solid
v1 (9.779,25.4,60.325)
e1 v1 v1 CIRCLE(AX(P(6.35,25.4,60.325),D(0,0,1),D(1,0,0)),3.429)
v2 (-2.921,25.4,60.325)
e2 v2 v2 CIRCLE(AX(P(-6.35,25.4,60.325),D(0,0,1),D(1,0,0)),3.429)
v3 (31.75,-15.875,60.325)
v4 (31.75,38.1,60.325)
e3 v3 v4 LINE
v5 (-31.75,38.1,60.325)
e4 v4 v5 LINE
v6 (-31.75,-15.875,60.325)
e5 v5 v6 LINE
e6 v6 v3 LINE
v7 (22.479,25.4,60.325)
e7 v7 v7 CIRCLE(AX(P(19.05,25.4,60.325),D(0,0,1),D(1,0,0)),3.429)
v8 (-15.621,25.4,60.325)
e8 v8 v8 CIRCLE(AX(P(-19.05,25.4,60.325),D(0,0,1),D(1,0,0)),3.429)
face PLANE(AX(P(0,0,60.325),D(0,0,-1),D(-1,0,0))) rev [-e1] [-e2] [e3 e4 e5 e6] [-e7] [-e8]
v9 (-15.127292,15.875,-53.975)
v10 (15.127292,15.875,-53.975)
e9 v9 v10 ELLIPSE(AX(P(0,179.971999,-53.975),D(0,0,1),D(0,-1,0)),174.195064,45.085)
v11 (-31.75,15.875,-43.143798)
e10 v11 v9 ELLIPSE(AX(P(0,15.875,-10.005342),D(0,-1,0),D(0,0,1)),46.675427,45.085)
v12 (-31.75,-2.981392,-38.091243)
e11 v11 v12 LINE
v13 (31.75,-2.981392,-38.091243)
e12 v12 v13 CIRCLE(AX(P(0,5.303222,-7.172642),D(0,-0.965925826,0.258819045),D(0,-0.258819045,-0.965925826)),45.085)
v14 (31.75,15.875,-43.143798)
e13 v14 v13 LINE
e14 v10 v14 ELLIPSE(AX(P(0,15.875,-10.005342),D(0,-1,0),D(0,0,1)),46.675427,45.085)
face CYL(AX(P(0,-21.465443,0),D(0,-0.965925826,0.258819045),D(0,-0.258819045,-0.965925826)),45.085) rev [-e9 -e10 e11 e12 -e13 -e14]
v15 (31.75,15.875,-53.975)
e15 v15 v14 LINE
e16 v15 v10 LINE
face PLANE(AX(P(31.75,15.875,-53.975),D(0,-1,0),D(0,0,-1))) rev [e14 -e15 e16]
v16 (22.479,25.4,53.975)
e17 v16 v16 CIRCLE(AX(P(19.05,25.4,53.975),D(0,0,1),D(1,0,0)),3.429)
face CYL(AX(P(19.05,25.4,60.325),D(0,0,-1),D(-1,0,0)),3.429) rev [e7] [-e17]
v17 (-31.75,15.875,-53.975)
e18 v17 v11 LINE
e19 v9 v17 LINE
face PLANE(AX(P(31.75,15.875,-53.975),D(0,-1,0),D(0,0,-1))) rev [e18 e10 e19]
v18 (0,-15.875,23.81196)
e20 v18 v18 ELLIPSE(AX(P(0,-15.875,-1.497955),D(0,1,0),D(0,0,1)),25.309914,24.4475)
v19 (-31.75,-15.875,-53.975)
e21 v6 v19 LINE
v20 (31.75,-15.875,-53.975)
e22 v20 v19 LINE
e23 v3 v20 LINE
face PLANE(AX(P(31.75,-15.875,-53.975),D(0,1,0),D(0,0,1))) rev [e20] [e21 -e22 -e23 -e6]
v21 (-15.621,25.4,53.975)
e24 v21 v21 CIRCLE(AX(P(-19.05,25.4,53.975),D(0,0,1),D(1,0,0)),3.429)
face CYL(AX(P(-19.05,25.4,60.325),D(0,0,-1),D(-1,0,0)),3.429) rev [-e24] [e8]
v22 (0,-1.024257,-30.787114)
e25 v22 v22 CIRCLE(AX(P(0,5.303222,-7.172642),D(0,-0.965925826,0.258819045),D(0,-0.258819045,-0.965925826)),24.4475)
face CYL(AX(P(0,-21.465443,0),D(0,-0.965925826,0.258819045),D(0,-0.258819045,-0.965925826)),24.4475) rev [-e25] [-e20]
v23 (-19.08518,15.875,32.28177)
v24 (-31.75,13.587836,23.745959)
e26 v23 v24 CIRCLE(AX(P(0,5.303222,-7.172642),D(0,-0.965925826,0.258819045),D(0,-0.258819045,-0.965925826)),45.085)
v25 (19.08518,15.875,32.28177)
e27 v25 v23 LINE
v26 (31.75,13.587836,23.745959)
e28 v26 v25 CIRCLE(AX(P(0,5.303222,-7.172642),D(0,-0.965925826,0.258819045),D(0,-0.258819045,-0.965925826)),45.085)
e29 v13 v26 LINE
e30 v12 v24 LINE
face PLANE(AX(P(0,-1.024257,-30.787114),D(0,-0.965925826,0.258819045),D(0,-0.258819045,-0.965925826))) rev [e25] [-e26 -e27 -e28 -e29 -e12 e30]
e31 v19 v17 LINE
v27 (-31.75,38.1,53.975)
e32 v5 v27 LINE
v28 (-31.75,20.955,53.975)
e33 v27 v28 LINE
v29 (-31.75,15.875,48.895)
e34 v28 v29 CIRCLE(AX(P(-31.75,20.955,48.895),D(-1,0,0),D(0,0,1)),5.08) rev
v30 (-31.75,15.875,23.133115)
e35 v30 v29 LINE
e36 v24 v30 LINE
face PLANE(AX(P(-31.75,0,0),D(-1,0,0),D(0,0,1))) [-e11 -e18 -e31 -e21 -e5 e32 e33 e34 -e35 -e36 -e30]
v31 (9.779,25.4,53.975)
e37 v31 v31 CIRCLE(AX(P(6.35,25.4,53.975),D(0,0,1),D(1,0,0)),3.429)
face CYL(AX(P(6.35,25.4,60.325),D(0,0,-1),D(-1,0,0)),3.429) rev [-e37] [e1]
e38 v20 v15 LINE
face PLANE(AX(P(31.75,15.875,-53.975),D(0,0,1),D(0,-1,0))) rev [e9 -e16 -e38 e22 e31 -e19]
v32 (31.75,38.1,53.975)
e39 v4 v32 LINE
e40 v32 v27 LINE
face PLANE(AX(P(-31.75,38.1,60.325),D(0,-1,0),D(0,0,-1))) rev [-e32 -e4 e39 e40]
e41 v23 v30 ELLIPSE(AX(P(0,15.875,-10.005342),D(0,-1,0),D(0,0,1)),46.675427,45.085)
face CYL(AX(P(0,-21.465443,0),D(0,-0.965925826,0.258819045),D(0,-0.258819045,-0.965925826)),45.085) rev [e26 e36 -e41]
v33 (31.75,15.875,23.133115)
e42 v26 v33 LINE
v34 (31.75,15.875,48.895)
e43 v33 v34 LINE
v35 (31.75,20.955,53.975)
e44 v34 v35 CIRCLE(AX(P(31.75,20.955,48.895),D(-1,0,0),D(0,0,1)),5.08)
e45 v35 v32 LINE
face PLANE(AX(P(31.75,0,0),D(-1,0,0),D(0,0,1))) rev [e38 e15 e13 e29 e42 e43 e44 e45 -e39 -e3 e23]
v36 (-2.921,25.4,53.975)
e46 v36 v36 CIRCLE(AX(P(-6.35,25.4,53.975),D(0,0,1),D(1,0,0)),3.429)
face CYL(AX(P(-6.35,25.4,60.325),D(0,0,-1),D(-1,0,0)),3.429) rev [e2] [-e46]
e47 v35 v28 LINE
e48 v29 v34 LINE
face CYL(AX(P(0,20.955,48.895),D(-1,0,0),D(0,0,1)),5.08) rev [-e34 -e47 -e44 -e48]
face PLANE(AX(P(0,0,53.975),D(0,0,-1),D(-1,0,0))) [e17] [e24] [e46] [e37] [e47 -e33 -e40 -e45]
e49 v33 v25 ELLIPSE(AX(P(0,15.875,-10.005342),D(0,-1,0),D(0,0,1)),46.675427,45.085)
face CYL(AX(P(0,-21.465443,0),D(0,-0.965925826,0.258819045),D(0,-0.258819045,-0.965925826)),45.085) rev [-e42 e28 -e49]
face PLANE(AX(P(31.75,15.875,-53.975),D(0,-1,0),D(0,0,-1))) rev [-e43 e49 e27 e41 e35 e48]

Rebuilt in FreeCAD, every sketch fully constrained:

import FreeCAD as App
import Part
import Sketcher

V = App.Vector
Q = App.Units.Quantity


def edges_at(feature, points):
    """Names of the edges that pass closest to the given points."""
    edges = feature.Shape.Edges
    near = lambda p: min(range(len(edges)), key=lambda i: edges[i].distToShape(Part.Vertex(*p))[0])
    return sorted({f"Edge{near(p) + 1}" for p in points})


def add_polygon(sketch, points):
    """Adds a closed chain of lines whose ends are joined by coincident constraints."""
    first, n = sketch.GeometryCount, len(points)
    for a, b in zip(points, points[1:] + points[:1]):
        sketch.addGeometry(Part.LineSegment(App.Vector(*a, 0), App.Vector(*b, 0)), False)
    for i in range(n):
        sketch.addConstraint(Sketcher.Constraint("Coincident", first + i, 2, first + (i + 1) % n, 1))

doc = App.newDocument("Part")
body = doc.addObject("PartDesign::Body", "Body")

# Sketch on YZ plane
sketch1 = body.newObject("Sketcher::SketchObject", "Sketch")
sketch1.AttachmentSupport = (doc.getObject("YZ_Plane"), [""])
sketch1.MapMode = "FlatFace"
add_polygon(sketch1, [(16, 54), (-16, 54), (-16, -54), (16, -54)])  # lines 0-3
sketch1.addConstraint(Sketcher.Constraint("Horizontal", 0))
sketch1.addConstraint(Sketcher.Constraint("Vertical", 1))
sketch1.addConstraint(Sketcher.Constraint("Horizontal", 2))
sketch1.addConstraint(Sketcher.Constraint("Vertical", 3))
sketch1.addConstraint(Sketcher.Constraint("Symmetric", 0, 2, 2, 2, -1, 1))
sketch1.addConstraint(Sketcher.Constraint("DistanceX", 0, 2, 0, 1, Q("1.25 in")))
sketch1.addConstraint(Sketcher.Constraint("DistanceY", 1, 2, 1, 1, Q("4.25 in")))
pad1 = body.newObject("PartDesign::Pad", "Pad")
pad1.Profile = sketch1
pad1.Length = Q("2.5 in")
pad1.Midplane = True

# Sketch on YZ plane
sketch2 = body.newObject("Sketcher::SketchObject", "Sketch001")
sketch2.AttachmentSupport = (doc.getObject("YZ_Plane"), [""])
sketch2.MapMode = "FlatFace"
add_polygon(sketch2, [(-35, -22), (-1, -31), (-6, -51), (26, -59), (38, -16), (-29, 2)])  # lines 0-5
sketch2.addGeometry(Part.LineSegment(V(-29, 2, 0), V(38, -16, 0)), True)  # axis
sketch2.addConstraint(Sketcher.Constraint("Coincident", 6, 1, 4, 2))
sketch2.addConstraint(Sketcher.Constraint("Coincident", 6, 2, 3, 2))
sketch2.addConstraint(Sketcher.Constraint("Perpendicular", 0, 1))
sketch2.addConstraint(Sketcher.Constraint("Perpendicular", 1, 2))
sketch2.addConstraint(Sketcher.Constraint("Perpendicular", 2, 3))
sketch2.addConstraint(Sketcher.Constraint("Perpendicular", 3, 4))
sketch2.addConstraint(Sketcher.Constraint("Perpendicular", 4, 5))
sketch2.addConstraint(Sketcher.Constraint("Angle", 0, Q("-15 deg")))
sketch2.addConstraint(Sketcher.Constraint("Distance", 1, Q("0.8125 in")))
sketch2.addConstraint(Sketcher.Constraint("Distance", 3, Q("1.775 in")))
sketch2.addConstraint(Sketcher.Constraint("DistanceX", 4, 2, -1, 1, Q("1.125 in")))
sketch2.addConstraint(Sketcher.Constraint("DistanceY", -1, 1, 4, 2, Q("0.075 in")))
sketch2.addConstraint(Sketcher.Constraint("DistanceY", 5, 2, 3, 2, Q("5.775298 mm")))
sketch2.addConstraint(Sketcher.Constraint("DistanceY", 1, 2, -1, 1, Q("50.721408 mm")))
groove = body.newObject("PartDesign::Groove", "Groove")
groove.Profile = sketch2
groove.ReferenceAxis = (sketch2, ["Axis0"])
groove.Angle = 360

# Sketch on XY plane
sketch3 = body.newObject("Sketcher::SketchObject", "Sketch002")
sketch3.AttachmentSupport = (doc.getObject("XY_Plane"), [""])
sketch3.MapMode = "FlatFace"
sketch3.AttachmentOffset = App.Placement(V(0, 0, 2.125 * 25.4), App.Rotation())
add_polygon(sketch3, [(-31.8, 38.1), (-31.8, -38.1), (31.8, -38.1), (31.8, 38.1)])  # lines 0-3
sketch3.addGeometry(Part.Circle(V(-19.1, -25.4, 0), V(0, 0, 1), 3.4), False)  # 4
sketch3.addGeometry(Part.Circle(V(-6.3, -25.4, 0), V(0, 0, 1), 3.4), False)  # 5
sketch3.addGeometry(Part.Circle(V(6.3, -25.4, 0), V(0, 0, 1), 3.4), False)  # 6
sketch3.addGeometry(Part.Circle(V(19.1, -25.4, 0), V(0, 0, 1), 3.4), False)  # 7
sketch3.addGeometry(Part.Circle(V(-19.1, 25.4, 0), V(0, 0, 1), 3.4), False)  # 8
sketch3.addGeometry(Part.Circle(V(-6.3, 25.4, 0), V(0, 0, 1), 3.4), False)  # 9
sketch3.addGeometry(Part.Circle(V(6.3, 25.4, 0), V(0, 0, 1), 3.4), False)  # 10
sketch3.addGeometry(Part.Circle(V(19.1, 25.4, 0), V(0, 0, 1), 3.4), False)  # 11
sketch3.addConstraint(Sketcher.Constraint("Vertical", 0))
sketch3.addConstraint(Sketcher.Constraint("Horizontal", 1))
sketch3.addConstraint(Sketcher.Constraint("Vertical", 2))
sketch3.addConstraint(Sketcher.Constraint("Horizontal", 3))
sketch3.addConstraint(Sketcher.Constraint("Equal", 4, 5))
sketch3.addConstraint(Sketcher.Constraint("Equal", 5, 6))
sketch3.addConstraint(Sketcher.Constraint("Equal", 6, 7))
sketch3.addConstraint(Sketcher.Constraint("Equal", 7, 8))
sketch3.addConstraint(Sketcher.Constraint("Equal", 8, 9))
sketch3.addConstraint(Sketcher.Constraint("Equal", 9, 10))
sketch3.addConstraint(Sketcher.Constraint("Equal", 10, 11))
sketch3.addConstraint(Sketcher.Constraint("Symmetric", 7, 3, 8, 3, -1, 1))
sketch3.addConstraint(Sketcher.Constraint("Symmetric", 6, 3, 9, 3, -1, 1))
sketch3.addConstraint(Sketcher.Constraint("Symmetric", 5, 3, 10, 3, -1, 1))
sketch3.addConstraint(Sketcher.Constraint("Symmetric", 4, 3, 11, 3, -1, 1))
sketch3.addConstraint(Sketcher.Constraint("Symmetric", 0, 2, 2, 2, -1, 1))
sketch3.addConstraint(Sketcher.Constraint("Symmetric", 5, 3, 6, 3, -2))
sketch3.addConstraint(Sketcher.Constraint("Symmetric", 4, 3, 7, 3, -2))
sketch3.addConstraint(Sketcher.Constraint("Horizontal", 4, 3, 5, 3))
sketch3.addConstraint(Sketcher.Constraint("Diameter", 4, Q("0.27 in")))
sketch3.addConstraint(Sketcher.Constraint("DistanceY", 0, 2, 0, 1, Q("3 in")))
sketch3.addConstraint(Sketcher.Constraint("DistanceX", 1, 1, 1, 2, Q("2.5 in")))
sketch3.addConstraint(Sketcher.Constraint("DistanceY", 4, 3, -1, 1, Q("1 in")))
sketch3.addConstraint(Sketcher.Constraint("DistanceX", 4, 3, 6, 3, Q("1 in")))
sketch3.addConstraint(Sketcher.Constraint("DistanceX", 0, 2, 5, 3, Q("1 in")))
pad2 = body.newObject("PartDesign::Pad", "Pad001")
pad2.Profile = sketch3
pad2.Length = Q("0.25 in")
doc.recompute()

fillet = body.newObject("PartDesign::Fillet", "Fillet")
fillet.Base = (pad2, edges_at(pad2, [(0, 15.875, 53.975), (0, -15.875, 53.975)]))
fillet.Radius = Q("0.2 in")

# Sketch on XY plane
sketch4 = body.newObject("Sketcher::SketchObject", "Sketch003")
sketch4.AttachmentSupport = (doc.getObject("XY_Plane"), [""])
sketch4.MapMode = "FlatFace"
sketch4.AttachmentOffset = App.Placement(V(0, 0, 2.125 * 25.4), App.Rotation())
add_polygon(sketch4, [(40, -16), (40, -42), (-39, -42), (-39, -16)])  # lines 0-3
sketch4.addConstraint(Sketcher.Constraint("Vertical", 0))
sketch4.addConstraint(Sketcher.Constraint("Horizontal", 1))
sketch4.addConstraint(Sketcher.Constraint("Vertical", 2))
sketch4.addConstraint(Sketcher.Constraint("Horizontal", 3))
sketch4.addConstraint(Sketcher.Constraint("DistanceY", 2, 2, -1, 1, Q("0.625 in")))
sketch4.addConstraint(Sketcher.Constraint("DistanceY", 0, 2, 0, 1, Q("26.600112 mm")))
sketch4.addConstraint(Sketcher.Constraint("DistanceX", 1, 2, 1, 1, Q("78.111464 mm")))
sketch4.addConstraint(Sketcher.Constraint("DistanceX", -1, 1, 0, 2, Q("39.59001 mm")))
pocket1 = body.newObject("PartDesign::Pocket", "Pocket")
pocket1.Profile = sketch4
pocket1.Type = "ThroughAll"
pocket1.Midplane = True

doc.recompute()
